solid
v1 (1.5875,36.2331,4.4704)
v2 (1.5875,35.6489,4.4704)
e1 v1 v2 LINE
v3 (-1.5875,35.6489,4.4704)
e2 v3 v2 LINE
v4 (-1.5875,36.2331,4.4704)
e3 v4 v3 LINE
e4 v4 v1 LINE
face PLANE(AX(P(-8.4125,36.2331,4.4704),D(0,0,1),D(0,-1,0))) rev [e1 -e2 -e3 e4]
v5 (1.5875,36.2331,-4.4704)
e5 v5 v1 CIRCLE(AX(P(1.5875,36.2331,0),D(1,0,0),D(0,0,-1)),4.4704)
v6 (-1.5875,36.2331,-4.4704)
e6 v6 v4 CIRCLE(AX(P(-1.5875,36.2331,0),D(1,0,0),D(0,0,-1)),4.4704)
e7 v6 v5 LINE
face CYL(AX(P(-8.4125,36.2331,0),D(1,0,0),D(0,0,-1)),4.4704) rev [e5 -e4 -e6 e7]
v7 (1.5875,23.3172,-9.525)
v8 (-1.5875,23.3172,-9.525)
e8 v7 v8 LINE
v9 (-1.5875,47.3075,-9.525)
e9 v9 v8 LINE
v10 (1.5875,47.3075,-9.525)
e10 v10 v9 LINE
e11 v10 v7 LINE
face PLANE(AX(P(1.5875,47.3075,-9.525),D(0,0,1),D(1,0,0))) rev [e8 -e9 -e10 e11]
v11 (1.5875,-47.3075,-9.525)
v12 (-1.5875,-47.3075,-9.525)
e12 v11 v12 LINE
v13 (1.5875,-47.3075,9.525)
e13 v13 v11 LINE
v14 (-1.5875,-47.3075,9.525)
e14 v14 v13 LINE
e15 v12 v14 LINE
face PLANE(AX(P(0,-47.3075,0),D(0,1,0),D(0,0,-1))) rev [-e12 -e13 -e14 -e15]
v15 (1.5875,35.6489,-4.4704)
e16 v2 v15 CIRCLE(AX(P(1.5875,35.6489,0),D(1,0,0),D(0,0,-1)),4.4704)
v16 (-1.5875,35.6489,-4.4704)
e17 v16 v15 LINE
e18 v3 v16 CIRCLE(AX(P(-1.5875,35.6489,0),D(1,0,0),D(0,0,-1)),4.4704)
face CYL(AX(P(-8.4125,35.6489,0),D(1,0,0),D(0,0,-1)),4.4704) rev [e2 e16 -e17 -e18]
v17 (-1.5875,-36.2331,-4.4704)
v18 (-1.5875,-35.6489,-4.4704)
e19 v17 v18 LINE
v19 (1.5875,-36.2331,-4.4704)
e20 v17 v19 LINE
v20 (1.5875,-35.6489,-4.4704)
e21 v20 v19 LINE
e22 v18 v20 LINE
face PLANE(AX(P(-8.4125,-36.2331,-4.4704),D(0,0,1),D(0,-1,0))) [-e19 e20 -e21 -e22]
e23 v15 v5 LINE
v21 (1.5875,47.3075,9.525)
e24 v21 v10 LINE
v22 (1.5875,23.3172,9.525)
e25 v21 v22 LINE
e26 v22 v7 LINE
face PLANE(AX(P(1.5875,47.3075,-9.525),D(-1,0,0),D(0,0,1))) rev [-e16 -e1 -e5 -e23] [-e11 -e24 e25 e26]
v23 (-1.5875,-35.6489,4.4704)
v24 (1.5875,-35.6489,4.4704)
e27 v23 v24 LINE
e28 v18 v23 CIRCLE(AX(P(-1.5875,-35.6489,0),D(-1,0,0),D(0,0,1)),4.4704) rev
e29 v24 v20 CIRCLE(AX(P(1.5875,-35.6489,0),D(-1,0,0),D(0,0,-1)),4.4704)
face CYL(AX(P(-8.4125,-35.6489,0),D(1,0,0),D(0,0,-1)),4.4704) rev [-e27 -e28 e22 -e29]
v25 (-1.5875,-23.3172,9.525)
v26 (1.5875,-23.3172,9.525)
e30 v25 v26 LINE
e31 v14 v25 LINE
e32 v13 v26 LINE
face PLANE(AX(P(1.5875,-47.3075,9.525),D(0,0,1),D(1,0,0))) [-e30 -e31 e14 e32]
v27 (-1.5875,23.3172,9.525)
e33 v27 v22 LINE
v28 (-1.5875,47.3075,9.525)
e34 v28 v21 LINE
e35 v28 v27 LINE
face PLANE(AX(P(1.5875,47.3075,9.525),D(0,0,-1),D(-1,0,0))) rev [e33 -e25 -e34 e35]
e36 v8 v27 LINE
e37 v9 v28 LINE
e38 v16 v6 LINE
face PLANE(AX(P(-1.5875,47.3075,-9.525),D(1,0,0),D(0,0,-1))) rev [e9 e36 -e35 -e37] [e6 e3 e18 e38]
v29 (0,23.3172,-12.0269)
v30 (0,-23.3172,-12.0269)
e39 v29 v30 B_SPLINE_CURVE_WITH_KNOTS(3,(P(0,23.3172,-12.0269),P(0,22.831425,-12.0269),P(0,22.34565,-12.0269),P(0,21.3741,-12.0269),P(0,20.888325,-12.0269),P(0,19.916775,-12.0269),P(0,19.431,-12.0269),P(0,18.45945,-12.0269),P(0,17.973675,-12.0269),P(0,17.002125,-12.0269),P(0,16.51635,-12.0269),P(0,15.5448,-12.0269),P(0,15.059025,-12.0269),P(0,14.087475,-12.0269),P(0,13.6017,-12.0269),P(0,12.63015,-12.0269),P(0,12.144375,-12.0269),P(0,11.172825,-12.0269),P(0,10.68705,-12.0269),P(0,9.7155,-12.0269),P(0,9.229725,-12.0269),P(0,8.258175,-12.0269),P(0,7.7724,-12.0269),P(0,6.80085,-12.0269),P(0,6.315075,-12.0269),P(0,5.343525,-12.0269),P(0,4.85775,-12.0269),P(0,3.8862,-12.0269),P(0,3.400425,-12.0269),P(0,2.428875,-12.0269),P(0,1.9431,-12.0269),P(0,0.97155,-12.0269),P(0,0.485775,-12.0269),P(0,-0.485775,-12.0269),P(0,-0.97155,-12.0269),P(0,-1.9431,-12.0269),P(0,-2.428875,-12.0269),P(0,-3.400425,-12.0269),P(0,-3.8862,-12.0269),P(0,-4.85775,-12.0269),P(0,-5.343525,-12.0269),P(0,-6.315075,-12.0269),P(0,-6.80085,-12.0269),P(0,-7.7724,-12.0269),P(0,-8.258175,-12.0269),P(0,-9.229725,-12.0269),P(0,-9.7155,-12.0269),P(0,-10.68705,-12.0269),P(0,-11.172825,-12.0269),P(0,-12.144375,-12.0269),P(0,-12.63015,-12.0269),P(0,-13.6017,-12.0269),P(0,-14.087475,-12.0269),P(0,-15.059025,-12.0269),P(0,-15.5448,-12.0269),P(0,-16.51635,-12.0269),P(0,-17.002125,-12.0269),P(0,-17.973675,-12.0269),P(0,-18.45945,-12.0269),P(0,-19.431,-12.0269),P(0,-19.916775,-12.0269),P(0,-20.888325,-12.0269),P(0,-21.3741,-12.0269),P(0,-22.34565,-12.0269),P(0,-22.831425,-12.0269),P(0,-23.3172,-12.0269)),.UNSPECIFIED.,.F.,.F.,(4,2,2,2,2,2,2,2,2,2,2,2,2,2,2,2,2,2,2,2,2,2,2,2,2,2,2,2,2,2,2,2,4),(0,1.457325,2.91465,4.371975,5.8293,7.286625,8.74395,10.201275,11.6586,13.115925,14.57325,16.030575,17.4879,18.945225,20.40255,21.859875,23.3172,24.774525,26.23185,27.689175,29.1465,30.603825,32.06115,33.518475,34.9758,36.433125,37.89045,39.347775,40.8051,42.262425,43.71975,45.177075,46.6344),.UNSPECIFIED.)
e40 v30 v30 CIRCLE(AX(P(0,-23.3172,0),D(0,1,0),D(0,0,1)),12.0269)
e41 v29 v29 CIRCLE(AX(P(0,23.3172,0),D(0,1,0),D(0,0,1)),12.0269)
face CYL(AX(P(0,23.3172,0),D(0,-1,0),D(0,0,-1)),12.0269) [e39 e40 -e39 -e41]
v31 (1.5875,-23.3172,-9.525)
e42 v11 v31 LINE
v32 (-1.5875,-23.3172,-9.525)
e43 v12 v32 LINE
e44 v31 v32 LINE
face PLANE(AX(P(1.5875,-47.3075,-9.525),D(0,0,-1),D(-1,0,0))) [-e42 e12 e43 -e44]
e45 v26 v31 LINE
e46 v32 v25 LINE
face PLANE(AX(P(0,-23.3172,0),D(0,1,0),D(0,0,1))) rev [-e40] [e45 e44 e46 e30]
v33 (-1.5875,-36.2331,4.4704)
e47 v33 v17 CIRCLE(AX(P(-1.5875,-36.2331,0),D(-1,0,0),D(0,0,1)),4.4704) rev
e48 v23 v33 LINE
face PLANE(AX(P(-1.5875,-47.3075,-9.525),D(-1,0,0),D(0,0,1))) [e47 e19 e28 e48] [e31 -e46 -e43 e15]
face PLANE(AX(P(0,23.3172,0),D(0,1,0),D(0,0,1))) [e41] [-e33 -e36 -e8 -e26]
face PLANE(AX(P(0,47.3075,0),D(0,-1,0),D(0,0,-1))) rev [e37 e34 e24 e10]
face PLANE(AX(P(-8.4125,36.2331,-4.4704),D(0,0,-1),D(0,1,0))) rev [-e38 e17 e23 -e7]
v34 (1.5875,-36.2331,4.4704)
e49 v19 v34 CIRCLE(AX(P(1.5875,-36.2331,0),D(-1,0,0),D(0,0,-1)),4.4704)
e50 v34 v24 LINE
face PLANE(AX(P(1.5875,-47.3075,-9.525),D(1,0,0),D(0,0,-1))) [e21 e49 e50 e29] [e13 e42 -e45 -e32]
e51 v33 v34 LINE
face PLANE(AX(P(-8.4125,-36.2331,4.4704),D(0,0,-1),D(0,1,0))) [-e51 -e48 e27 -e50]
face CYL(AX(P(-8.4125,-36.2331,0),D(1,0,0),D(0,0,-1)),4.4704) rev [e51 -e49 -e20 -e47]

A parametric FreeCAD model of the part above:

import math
import FreeCAD as App
import Part
import Sketcher
from FreeCAD import Vector
Q = App.Units.Quantity


def add_polygon(sketch, points):
    """Adds a closed chain of lines whose ends are joined by coincident constraints."""
    first, n = sketch.GeometryCount, len(points)
    for a, b in zip(points, points[1:] + points[:1]):
        sketch.addGeometry(Part.LineSegment(App.Vector(*a, 0), App.Vector(*b, 0)), False)
    for i in range(n):
        sketch.addConstraint(Sketcher.Constraint("Coincident", first + i, 2, first + (i + 1) % n, 1))

doc = App.newDocument("Part")
body = doc.addObject("PartDesign::Body", "Body")

sketch1 = body.newObject("Sketcher::SketchObject", "Sketch")
sketch1.AttachmentSupport = (doc.getObject("XZ_Plane"), [""])
sketch1.MapMode = "FlatFace"
sketch1.addGeometry(Part.Circle(Vector(0, 0, 0), Vector(0, 0, 1), 12.0269), False)
sketch1.addConstraint(Sketcher.Constraint("Coincident", 0, 3, -1, 1))
sketch1.addConstraint(Sketcher.Constraint("Diameter", 0, Q("0.947 in")))
pad1 = body.newObject("PartDesign::Pad", "Pad")
pad1.Profile = sketch1
pad1.Length = Q("1.836 in")
pad1.Midplane = True

sketch2 = body.newObject("Sketcher::SketchObject", "Sketch001")
sketch2.AttachmentSupport = (doc.getObject("XZ_Plane"), [""])
sketch2.MapMode = "FlatFace"
sketch2.AttachmentOffset = App.Placement(Vector(0, 0, -0.918 * 25.4), App.Rotation())
add_polygon(sketch2, [(-1.5875, -9.525), (-1.5875, 9.525), (1.5875, 9.525), (1.5875, -9.525)])
sketch2.addConstraint(Sketcher.Constraint("Vertical", 0))
sketch2.addConstraint(Sketcher.Constraint("Horizontal", 1))
sketch2.addConstraint(Sketcher.Constraint("Vertical", 2))
sketch2.addConstraint(Sketcher.Constraint("Horizontal", 3))
sketch2.addConstraint(Sketcher.Constraint("Symmetric", 0, 2, 2, 2, -1, 1))
sketch2.addConstraint(Sketcher.Constraint("DistanceY", 0, 1, 0, 2, Q("0.75 in")))
sketch2.addConstraint(Sketcher.Constraint("DistanceX", 1, 1, 1, 2, Q("0.125 in")))
pad2 = body.newObject("PartDesign::Pad", "Pad001")
pad2.Profile = sketch2
pad2.Length = Q("0.9445 in")
pad2.Reversed = True

sketch3 = body.newObject("Sketcher::SketchObject", "Sketch002")
sketch3.AttachmentSupport = (doc.getObject("YZ_Plane"), [""])
sketch3.MapMode = "FlatFace"
sketch3.AttachmentOffset = App.Placement(Vector(0, 0, 0.0625 * 25.4), App.Rotation())
sketch3.addGeometry(Part.LineSegment(Vector(35.6489, -4.4704, 0), Vector(36.2331, -4.4704, 0)), False)
sketch3.addGeometry(Part.ArcOfCircle(Part.Circle(Vector(36.2331, 0, 0), Vector(0, 0, 1), 4.4704), math.radians(-90), math.radians(90)), False)
sketch3.addGeometry(Part.LineSegment(Vector(36.2331, 4.4704, 0), Vector(35.6489, 4.4704, 0)), False)
sketch3.addGeometry(Part.ArcOfCircle(Part.Circle(Vector(35.6489, 0, 0), Vector(0, 0, 1), 4.4704), math.radians(90), math.radians(270)), False)
sketch3.addGeometry(Part.LineSegment(Vector(-36.2331, -4.4704, 0), Vector(-35.6489, -4.4704, 0)), False)
sketch3.addGeometry(Part.ArcOfCircle(Part.Circle(Vector(-35.6489, 0, 0), Vector(0, 0, 1), 4.4704), math.radians(-90), math.radians(90)), False)
sketch3.addGeometry(Part.LineSegment(Vector(-35.6489, 4.4704, 0), Vector(-36.2331, 4.4704, 0)), False)
sketch3.addGeometry(Part.ArcOfCircle(Part.Circle(Vector(-36.2331, 0, 0), Vector(0, 0, 1), 4.4704), math.radians(90), math.radians(270)), False)
sketch3.addConstraint(Sketcher.Constraint("Tangent", 0, 2, 1, 1))
sketch3.addConstraint(Sketcher.Constraint("Tangent", 1, 2, 2, 1))
sketch3.addConstraint(Sketcher.Constraint("Tangent", 2, 2, 3, 1))
sketch3.addConstraint(Sketcher.Constraint("Tangent", 3, 2, 0, 1))
sketch3.addConstraint(Sketcher.Constraint("Tangent", 4, 2, 5, 1))
sketch3.addConstraint(Sketcher.Constraint("Tangent", 5, 2, 6, 1))
sketch3.addConstraint(Sketcher.Constraint("Tangent", 6, 2, 7, 1))
sketch3.addConstraint(Sketcher.Constraint("Tangent", 7, 2, 4, 1))
sketch3.addConstraint(Sketcher.Constraint("Horizontal", 0))
sketch3.addConstraint(Sketcher.Constraint("Horizontal", 2))
sketch3.addConstraint(Sketcher.Constraint("Horizontal", 4))
sketch3.addConstraint(Sketcher.Constraint("Horizontal", 6))
sketch3.addConstraint(Sketcher.Constraint("Equal", 3, 5))
sketch3.addConstraint(Sketcher.Constraint("Symmetric", 3, 3, 5, 3, -1, 1))
sketch3.addConstraint(Sketcher.Constraint("Symmetric", 1, 3, 7, 3, -2))
sketch3.addConstraint(Sketcher.Constraint("Radius", 1, Q("0.176 in")))
sketch3.addConstraint(Sketcher.Constraint("DistanceX", 0, 1, 0, 2, Q("0.023 in")))
sketch3.addConstraint(Sketcher.Constraint("DistanceX", 5, 3, 1, 3, Q("2.83 in")))
pocket1 = body.newObject("PartDesign::Pocket", "Pocket")
pocket1.Profile = sketch3
pocket1.Length = 10
doc.recompute()

mirrored = body.newObject("PartDesign::Mirrored", "Mirrored")
mirrored.Originals = [pad2, pocket1]
mirrored.MirrorPlane = (doc.getObject("XZ_Plane"), [""])
body.Tip = mirrored

doc.recompute()
